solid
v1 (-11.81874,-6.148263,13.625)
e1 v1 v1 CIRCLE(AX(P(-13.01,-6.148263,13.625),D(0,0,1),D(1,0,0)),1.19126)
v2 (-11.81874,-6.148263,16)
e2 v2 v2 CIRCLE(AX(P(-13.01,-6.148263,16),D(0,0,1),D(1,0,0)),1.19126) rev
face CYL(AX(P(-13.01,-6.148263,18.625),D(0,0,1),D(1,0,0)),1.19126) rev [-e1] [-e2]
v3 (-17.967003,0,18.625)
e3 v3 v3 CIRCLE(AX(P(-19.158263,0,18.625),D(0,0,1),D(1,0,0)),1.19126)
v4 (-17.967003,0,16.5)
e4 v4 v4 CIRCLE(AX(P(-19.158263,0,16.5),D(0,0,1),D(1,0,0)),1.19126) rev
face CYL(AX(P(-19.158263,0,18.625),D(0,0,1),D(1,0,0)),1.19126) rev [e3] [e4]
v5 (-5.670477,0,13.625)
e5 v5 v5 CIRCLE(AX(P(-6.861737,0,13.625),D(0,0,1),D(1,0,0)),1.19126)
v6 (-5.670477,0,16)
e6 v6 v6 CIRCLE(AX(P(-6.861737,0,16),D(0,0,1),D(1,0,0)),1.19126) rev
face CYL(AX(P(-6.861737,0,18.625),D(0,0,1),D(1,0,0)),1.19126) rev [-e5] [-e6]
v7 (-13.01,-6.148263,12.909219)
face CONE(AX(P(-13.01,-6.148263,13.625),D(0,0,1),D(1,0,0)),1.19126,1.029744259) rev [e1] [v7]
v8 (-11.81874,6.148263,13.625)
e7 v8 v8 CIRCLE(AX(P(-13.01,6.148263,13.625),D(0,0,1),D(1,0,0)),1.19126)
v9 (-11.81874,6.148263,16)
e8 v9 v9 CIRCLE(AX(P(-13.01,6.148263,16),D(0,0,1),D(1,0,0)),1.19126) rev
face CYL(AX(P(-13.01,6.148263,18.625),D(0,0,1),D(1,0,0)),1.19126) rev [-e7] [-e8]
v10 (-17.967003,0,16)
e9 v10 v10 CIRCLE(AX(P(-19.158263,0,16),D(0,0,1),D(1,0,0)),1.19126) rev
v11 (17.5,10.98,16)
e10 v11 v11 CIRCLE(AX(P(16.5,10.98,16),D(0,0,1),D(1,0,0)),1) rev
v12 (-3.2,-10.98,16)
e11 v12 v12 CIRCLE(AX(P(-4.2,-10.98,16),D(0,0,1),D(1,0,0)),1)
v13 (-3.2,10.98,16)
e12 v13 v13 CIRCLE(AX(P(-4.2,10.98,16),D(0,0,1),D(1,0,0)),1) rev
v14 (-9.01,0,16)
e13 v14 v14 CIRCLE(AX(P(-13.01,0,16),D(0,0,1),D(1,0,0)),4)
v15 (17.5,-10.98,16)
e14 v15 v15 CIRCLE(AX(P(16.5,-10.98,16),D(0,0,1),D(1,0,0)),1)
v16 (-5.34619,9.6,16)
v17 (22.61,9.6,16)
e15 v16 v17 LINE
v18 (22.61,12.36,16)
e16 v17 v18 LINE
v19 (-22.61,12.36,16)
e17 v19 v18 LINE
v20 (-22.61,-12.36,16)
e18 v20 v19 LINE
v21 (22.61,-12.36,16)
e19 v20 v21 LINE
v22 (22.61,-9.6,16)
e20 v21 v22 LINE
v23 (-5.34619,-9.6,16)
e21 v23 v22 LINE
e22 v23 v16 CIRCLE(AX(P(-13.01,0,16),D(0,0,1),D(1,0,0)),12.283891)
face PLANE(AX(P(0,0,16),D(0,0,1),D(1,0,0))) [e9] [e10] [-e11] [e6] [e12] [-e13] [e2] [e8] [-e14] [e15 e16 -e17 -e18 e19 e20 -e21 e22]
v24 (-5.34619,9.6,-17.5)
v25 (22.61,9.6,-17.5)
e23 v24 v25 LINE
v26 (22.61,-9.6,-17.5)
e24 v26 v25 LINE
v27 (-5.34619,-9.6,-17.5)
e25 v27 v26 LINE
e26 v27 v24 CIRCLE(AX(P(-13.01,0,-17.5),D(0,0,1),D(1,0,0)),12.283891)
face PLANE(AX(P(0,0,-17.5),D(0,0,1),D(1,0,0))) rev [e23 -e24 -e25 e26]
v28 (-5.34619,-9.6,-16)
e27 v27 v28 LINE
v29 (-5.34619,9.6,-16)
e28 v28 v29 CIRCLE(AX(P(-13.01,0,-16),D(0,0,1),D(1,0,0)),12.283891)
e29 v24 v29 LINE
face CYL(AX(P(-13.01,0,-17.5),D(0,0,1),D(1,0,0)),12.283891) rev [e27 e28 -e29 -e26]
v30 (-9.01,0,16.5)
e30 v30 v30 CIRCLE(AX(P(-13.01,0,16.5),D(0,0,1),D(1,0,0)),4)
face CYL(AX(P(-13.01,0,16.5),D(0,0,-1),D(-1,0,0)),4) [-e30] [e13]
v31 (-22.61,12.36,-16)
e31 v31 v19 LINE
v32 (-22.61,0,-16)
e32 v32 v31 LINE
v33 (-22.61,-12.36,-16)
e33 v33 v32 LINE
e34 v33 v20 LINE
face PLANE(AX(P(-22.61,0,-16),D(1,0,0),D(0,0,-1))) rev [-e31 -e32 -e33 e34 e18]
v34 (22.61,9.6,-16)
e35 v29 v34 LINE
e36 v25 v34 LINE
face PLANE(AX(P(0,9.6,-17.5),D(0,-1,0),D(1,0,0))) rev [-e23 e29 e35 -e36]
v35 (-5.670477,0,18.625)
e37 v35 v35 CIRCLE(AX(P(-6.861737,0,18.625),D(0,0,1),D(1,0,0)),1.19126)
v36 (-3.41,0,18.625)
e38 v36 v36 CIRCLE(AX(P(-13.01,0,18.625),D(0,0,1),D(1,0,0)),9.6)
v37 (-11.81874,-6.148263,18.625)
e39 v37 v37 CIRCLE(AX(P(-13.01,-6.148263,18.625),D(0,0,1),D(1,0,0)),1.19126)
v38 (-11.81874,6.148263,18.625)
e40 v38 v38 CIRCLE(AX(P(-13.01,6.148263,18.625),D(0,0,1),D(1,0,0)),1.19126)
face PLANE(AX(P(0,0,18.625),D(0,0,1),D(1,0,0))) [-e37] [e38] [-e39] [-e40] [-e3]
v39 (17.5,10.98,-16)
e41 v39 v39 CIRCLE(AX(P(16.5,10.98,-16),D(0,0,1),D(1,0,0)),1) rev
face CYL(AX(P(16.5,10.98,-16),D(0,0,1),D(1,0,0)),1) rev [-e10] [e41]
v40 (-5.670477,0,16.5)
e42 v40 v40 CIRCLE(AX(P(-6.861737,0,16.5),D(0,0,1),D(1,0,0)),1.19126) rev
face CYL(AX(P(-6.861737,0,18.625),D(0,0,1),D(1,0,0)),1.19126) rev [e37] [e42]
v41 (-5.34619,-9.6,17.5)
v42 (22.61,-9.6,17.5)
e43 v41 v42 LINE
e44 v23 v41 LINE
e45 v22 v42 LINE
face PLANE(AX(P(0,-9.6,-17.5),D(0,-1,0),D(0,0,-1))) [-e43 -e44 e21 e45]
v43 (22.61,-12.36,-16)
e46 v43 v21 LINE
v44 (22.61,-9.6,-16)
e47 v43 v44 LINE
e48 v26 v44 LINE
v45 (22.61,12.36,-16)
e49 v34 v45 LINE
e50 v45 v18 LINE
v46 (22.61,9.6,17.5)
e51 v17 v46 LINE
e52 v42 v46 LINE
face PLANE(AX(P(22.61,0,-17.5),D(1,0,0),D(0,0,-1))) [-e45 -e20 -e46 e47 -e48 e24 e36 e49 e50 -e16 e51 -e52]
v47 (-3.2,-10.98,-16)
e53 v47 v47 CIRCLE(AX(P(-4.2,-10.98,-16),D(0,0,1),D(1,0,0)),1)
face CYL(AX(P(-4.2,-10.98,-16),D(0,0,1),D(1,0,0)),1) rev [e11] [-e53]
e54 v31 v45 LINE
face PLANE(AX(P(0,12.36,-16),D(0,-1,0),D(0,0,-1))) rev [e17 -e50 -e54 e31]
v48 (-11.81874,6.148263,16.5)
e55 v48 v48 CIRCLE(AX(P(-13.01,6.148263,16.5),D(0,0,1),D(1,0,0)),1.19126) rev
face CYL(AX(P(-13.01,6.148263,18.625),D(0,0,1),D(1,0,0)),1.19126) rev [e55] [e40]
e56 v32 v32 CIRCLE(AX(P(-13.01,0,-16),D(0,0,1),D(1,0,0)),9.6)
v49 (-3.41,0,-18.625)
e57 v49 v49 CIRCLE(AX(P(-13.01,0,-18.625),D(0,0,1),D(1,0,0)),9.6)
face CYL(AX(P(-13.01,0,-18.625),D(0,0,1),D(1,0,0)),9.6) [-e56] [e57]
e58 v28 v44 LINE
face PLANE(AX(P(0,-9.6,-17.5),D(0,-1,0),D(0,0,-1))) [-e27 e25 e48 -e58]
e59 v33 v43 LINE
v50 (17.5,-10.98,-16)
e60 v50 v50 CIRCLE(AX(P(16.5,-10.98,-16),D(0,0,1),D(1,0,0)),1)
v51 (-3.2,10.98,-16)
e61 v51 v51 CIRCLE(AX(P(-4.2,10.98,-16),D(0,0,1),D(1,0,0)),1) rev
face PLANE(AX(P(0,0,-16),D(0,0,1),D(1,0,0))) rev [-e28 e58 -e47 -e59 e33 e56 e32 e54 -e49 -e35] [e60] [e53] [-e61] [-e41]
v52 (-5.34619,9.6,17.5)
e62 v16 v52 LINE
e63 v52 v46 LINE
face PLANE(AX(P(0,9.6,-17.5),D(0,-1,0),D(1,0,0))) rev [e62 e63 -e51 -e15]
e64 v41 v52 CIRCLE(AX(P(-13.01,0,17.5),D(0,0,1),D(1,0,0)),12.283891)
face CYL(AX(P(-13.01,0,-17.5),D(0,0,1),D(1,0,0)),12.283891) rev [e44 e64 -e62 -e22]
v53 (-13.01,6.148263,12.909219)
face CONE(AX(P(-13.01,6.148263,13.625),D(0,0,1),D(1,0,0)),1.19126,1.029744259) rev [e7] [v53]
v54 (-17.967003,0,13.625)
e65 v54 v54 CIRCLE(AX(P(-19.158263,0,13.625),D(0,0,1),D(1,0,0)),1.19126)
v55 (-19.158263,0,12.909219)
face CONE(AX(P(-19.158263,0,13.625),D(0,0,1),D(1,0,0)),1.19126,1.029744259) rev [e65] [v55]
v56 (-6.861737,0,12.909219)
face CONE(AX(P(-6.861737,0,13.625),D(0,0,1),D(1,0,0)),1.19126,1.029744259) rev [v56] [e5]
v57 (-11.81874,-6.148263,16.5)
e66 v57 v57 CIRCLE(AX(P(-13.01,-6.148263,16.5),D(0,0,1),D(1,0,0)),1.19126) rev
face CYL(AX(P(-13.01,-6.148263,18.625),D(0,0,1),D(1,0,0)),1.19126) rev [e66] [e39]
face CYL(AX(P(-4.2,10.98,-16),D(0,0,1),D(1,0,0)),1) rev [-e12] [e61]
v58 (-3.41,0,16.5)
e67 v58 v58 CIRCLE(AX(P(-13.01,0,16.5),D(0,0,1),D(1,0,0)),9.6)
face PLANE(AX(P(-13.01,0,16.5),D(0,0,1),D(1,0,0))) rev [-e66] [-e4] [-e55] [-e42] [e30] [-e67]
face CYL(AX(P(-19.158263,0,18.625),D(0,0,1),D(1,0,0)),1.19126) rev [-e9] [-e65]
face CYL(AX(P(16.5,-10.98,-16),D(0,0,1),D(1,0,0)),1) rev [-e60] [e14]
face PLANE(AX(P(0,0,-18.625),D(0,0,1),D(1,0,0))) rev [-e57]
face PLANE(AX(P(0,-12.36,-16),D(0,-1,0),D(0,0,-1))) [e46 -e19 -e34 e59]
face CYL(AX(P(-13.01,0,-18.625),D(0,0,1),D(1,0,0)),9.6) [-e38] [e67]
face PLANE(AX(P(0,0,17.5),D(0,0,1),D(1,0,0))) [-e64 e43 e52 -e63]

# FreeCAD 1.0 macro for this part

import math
import FreeCAD as App
import Part
import Sketcher
from FreeCAD import Vector

doc = App.newDocument("Part")
body = doc.addObject("PartDesign::Body", "Body")

sketch1 = body.newObject("Sketcher::SketchObject", "Sketch")
sketch1.AttachmentSupport = (doc.getObject("XY_Plane"), [""])
sketch1.MapMode = "FlatFace"
sketch1.addGeometry(Part.ArcOfCircle(Part.Circle(Vector(-13.01, 0, 0), Vector(0, 0, 1), 12.283891), math.radians(-51.399161), math.radians(0)), False)
sketch1.addGeometry(Part.LineSegment(Vector(-5.34619, -9.6, 0), Vector(22.61, -9.6, 0)), False)
sketch1.addGeometry(Part.LineSegment(Vector(22.61, -9.6, 0), Vector(22.61, 9.6, 0)), False)
sketch1.addGeometry(Part.LineSegment(Vector(22.61, 9.6, 0), Vector(-5.34619, 9.6, 0)), False)
sketch1.addGeometry(Part.ArcOfCircle(Part.Circle(Vector(-13.01, 0, 0), Vector(0, 0, 1), 12.283891), math.radians(0), math.radians(51.399161)), False)
sketch1.addConstraint(Sketcher.Constraint("Coincident", 0, 1, 1, 1))
sketch1.addConstraint(Sketcher.Constraint("Coincident", 1, 2, 2, 1))
sketch1.addConstraint(Sketcher.Constraint("Coincident", 2, 2, 3, 1))
sketch1.addConstraint(Sketcher.Constraint("Coincident", 3, 2, 4, 2))
sketch1.addConstraint(Sketcher.Constraint("Tangent", 4, 1, 0, 2))
sketch1.addConstraint(Sketcher.Constraint("Horizontal", 1))
sketch1.addConstraint(Sketcher.Constraint("Vertical", 2))
sketch1.addConstraint(Sketcher.Constraint("Horizontal", 3))
sketch1.addConstraint(Sketcher.Constraint("Equal", 0, 4))
sketch1.addConstraint(Sketcher.Constraint("Symmetric", 0, 1, 3, 2, -1))
sketch1.addConstraint(Sketcher.Constraint("PointOnObject", 4, 1, -1))
sketch1.addConstraint(Sketcher.Constraint("DistanceY", 2, 1, 2, 2, 19.2))
sketch1.addConstraint(Sketcher.Constraint("DistanceX", 0, 3, -1, 1, 13.01))
sketch1.addConstraint(Sketcher.Constraint("DistanceX", -1, 1, 1, 2, 22.61))
sketch1.addConstraint(Sketcher.Constraint("Radius", 0, 12.283891))
pad1 = body.newObject("PartDesign::Pad", "Pad")
pad1.Profile = sketch1
pad1.Type = "TwoLengths"
pad1.Length = 17.5
pad1.Length2 = 17.5

sketch2 = body.newObject("Sketcher::SketchObject", "Sketch001")
sketch2.AttachmentSupport = (doc.getObject("XY_Plane"), [""])
sketch2.MapMode = "FlatFace"
sketch2.addGeometry(Part.ArcOfCircle(Part.Circle(Vector(-13.01, 0, 0), Vector(0, 0, 1), 12.283891), math.radians(-51.399161), math.radians(0)), False)
sketch2.addGeometry(Part.ArcOfCircle(Part.Circle(Vector(-13.01, 0, 0), Vector(0, 0, 1), 12.283891), math.radians(0), math.radians(51.399161)), False)
sketch2.addGeometry(Part.LineSegment(Vector(-5.34619, 9.6, 0), Vector(22.61, 9.6, 0)), False)
sketch2.addGeometry(Part.LineSegment(Vector(22.61, 9.6, 0), Vector(22.61, 12.36, 0)), False)
sketch2.addGeometry(Part.LineSegment(Vector(22.61, 12.36, 0), Vector(-22.61, 12.36, 0)), False)
sketch2.addGeometry(Part.LineSegment(Vector(-22.61, 12.36, 0), Vector(-22.61, -12.36, 0)), False)
sketch2.addGeometry(Part.LineSegment(Vector(-22.61, -12.36, 0), Vector(22.61, -12.36, 0)), False)
sketch2.addGeometry(Part.LineSegment(Vector(22.61, -12.36, 0), Vector(22.61, -9.6, 0)), False)
sketch2.addGeometry(Part.LineSegment(Vector(22.61, -9.6, 0), Vector(-5.34619, -9.6, 0)), False)
sketch2.addGeometry(Part.Circle(Vector(16.5, 10.98, 0), Vector(0, 0, 1), 1), False)
sketch2.addGeometry(Part.Circle(Vector(-4.2, 10.98, 0), Vector(0, 0, 1), 1), False)
sketch2.addGeometry(Part.Circle(Vector(16.5, -10.98, 0), Vector(0, 0, 1), 1), False)
sketch2.addGeometry(Part.Circle(Vector(-4.2, -10.98, 0), Vector(0, 0, 1), 1), False)
sketch2.addConstraint(Sketcher.Constraint("Tangent", 0, 2, 1, 1))
sketch2.addConstraint(Sketcher.Constraint("Coincident", 1, 2, 2, 1))
sketch2.addConstraint(Sketcher.Constraint("Coincident", 2, 2, 3, 1))
sketch2.addConstraint(Sketcher.Constraint("Coincident", 3, 2, 4, 1))
sketch2.addConstraint(Sketcher.Constraint("Coincident", 4, 2, 5, 1))
sketch2.addConstraint(Sketcher.Constraint("Coincident", 5, 2, 6, 1))
sketch2.addConstraint(Sketcher.Constraint("Coincident", 6, 2, 7, 1))
sketch2.addConstraint(Sketcher.Constraint("Coincident", 7, 2, 8, 1))
sketch2.addConstraint(Sketcher.Constraint("Coincident", 8, 2, 0, 1))
sketch2.addConstraint(Sketcher.Constraint("Horizontal", 2))
sketch2.addConstraint(Sketcher.Constraint("Vertical", 3))
sketch2.addConstraint(Sketcher.Constraint("Horizontal", 4))
sketch2.addConstraint(Sketcher.Constraint("Vertical", 5))
sketch2.addConstraint(Sketcher.Constraint("Horizontal", 6))
sketch2.addConstraint(Sketcher.Constraint("Vertical", 7))
sketch2.addConstraint(Sketcher.Constraint("Horizontal", 8))
sketch2.addConstraint(Sketcher.Constraint("Equal", 0, 1))
sketch2.addConstraint(Sketcher.Constraint("Equal", 9, 10))
sketch2.addConstraint(Sketcher.Constraint("Equal", 10, 11))
sketch2.addConstraint(Sketcher.Constraint("Equal", 11, 12))
sketch2.addConstraint(Sketcher.Constraint("Symmetric", 3, 2, 5, 2, -1, 1))
sketch2.addConstraint(Sketcher.Constraint("Symmetric", 9, 3, 11, 3, -1))
sketch2.addConstraint(Sketcher.Constraint("Symmetric", 10, 3, 12, 3, -1))
sketch2.addConstraint(Sketcher.Constraint("Symmetric", 2, 2, 7, 2, -1))
sketch2.addConstraint(Sketcher.Constraint("PointOnObject", 0, 3, -1))
sketch2.addConstraint(Sketcher.Constraint("PointOnObject", 0, 2, -1))
sketch2.addConstraint(Sketcher.Constraint("Horizontal", 9, 3, 10, 3))
sketch2.addConstraint(Sketcher.Constraint("Diameter", 9, 2.0))
sketch2.addConstraint(Sketcher.Constraint("DistanceX", 4, 2, 4, 1, 45.22))
sketch2.addConstraint(Sketcher.Constraint("DistanceY", 3, 1, 3, 2, 2.76))
sketch2.addConstraint(Sketcher.Constraint("DistanceY", 5, 2, 5, 1, 24.72))
sketch2.addConstraint(Sketcher.Constraint("DistanceX", -1, 1, 9, 3, 16.5))
sketch2.addConstraint(Sketcher.Constraint("DistanceX", 10, 3, -1, 1, 4.2))
sketch2.addConstraint(Sketcher.Constraint("DistanceX", 4, 2, 0, 3, 9.6))
sketch2.addConstraint(Sketcher.Constraint("DistanceY", -1, 1, 9, 3, 10.98))
sketch2.addConstraint(Sketcher.Constraint("Radius", 0, 12.283891))
pad2 = body.newObject("PartDesign::Pad", "Pad001")
pad2.Profile = sketch2
pad2.Type = "TwoLengths"
pad2.Length = 16
pad2.Length2 = 16

sketch3 = body.newObject("Sketcher::SketchObject", "Sketch002")
sketch3.AttachmentSupport = (doc.getObject("XY_Plane"), [""])
sketch3.MapMode = "FlatFace"
sketch3.addGeometry(Part.Circle(Vector(-13.01, 0, 0), Vector(0, 0, 1), 9.6), False)
sketch3.addConstraint(Sketcher.Constraint("PointOnObject", 0, 3, -1))
sketch3.addConstraint(Sketcher.Constraint("Diameter", 0, 19.2))
sketch3.addConstraint(Sketcher.Constraint("DistanceX", 0, 3, -1, 1, 13.01))
pad3 = body.newObject("PartDesign::Pad", "Pad002")
pad3.Profile = sketch3
pad3.Type = "TwoLengths"
pad3.Length = 18.625
pad3.Length2 = 18.625

sketch4 = body.newObject("Sketcher::SketchObject", "Sketch003")
sketch4.AttachmentSupport = (doc.getObject("XY_Plane"), [""])
sketch4.MapMode = "FlatFace"
sketch4.AttachmentOffset = App.Placement(Vector(0, 0, 18.625), App.Rotation())
sketch4.addGeometry(Part.Circle(Vector(-13.01, 6.148263, 0), Vector(0, 0, 1), 1.19126), False)
sketch4.addGeometry(Part.Circle(Vector(-6.861737, 0, 0), Vector(0, 0, 1), 1.19126), False)
sketch4.addGeometry(Part.Circle(Vector(-13.01, -6.148263, 0), Vector(0, 0, 1), 1.19126), False)
sketch4.addGeometry(Part.Circle(Vector(-19.158263, 0, 0), Vector(0, 0, 1), 1.19126), False)
sketch4.addConstraint(Sketcher.Constraint("Equal", 0, 1))
sketch4.addConstraint(Sketcher.Constraint("Equal", 1, 2))
sketch4.addConstraint(Sketcher.Constraint("Equal", 2, 3))
sketch4.addConstraint(Sketcher.Constraint("Symmetric", 0, 3, 2, 3, -1))
sketch4.addConstraint(Sketcher.Constraint("PointOnObject", 1, 3, -1))
sketch4.addConstraint(Sketcher.Constraint("PointOnObject", 3, 3, -1))
sketch4.addConstraint(Sketcher.Constraint("Diameter", 0, 2.38252))
sketch4.addConstraint(Sketcher.Constraint("DistanceX", 0, 3, -1, 1, 13.01))
sketch4.addConstraint(Sketcher.Constraint("DistanceY", -1, 1, 0, 3, 6.148263))
sketch4.addConstraint(Sketcher.Constraint("DistanceX", 1, 3, -1, 1, 6.861737))
sketch4.addConstraint(Sketcher.Constraint("DistanceX", 3, 3, -1, 1, 19.158263))
doc.recompute()
hole = body.newObject("PartDesign::Hole", "Hole")
hole.Profile = sketch4
hole.ThreadType = "None"
hole.Diameter = 2.38252
hole.DepthType = "Dimension"
hole.Depth = 5
hole.DrillPoint = "Angled"
hole.DrillPointAngle = 118

sketch5 = body.newObject("Sketcher::SketchObject", "Sketch004")
sketch5.AttachmentSupport = (doc.getObject("XY_Plane"), [""])
sketch5.MapMode = "FlatFace"
sketch5.AttachmentOffset = App.Placement(Vector(0, 0, 16), App.Rotation())
sketch5.addGeometry(Part.Circle(Vector(-13.01, 0, 0), Vector(0, 0, 1), 9.6), False)
sketch5.addGeometry(Part.Circle(Vector(-13.01, 0, 0), Vector(0, 0, 1), 4), False)
sketch5.addConstraint(Sketcher.Constraint("Coincident", 1, 3, 0, 3))
sketch5.addConstraint(Sketcher.Constraint("PointOnObject", 0, 3, -1))
sketch5.addConstraint(Sketcher.Constraint("Diameter", 1, 8.0))
sketch5.addConstraint(Sketcher.Constraint("Diameter", 0, 19.2))
sketch5.addConstraint(Sketcher.Constraint("DistanceX", 0, 3, -1, 1, 13.01))
pocket1 = body.newObject("PartDesign::Pocket", "Pocket")
pocket1.Profile = sketch5
pocket1.Length = 0.5
pocket1.Reversed = True

doc.recompute()
